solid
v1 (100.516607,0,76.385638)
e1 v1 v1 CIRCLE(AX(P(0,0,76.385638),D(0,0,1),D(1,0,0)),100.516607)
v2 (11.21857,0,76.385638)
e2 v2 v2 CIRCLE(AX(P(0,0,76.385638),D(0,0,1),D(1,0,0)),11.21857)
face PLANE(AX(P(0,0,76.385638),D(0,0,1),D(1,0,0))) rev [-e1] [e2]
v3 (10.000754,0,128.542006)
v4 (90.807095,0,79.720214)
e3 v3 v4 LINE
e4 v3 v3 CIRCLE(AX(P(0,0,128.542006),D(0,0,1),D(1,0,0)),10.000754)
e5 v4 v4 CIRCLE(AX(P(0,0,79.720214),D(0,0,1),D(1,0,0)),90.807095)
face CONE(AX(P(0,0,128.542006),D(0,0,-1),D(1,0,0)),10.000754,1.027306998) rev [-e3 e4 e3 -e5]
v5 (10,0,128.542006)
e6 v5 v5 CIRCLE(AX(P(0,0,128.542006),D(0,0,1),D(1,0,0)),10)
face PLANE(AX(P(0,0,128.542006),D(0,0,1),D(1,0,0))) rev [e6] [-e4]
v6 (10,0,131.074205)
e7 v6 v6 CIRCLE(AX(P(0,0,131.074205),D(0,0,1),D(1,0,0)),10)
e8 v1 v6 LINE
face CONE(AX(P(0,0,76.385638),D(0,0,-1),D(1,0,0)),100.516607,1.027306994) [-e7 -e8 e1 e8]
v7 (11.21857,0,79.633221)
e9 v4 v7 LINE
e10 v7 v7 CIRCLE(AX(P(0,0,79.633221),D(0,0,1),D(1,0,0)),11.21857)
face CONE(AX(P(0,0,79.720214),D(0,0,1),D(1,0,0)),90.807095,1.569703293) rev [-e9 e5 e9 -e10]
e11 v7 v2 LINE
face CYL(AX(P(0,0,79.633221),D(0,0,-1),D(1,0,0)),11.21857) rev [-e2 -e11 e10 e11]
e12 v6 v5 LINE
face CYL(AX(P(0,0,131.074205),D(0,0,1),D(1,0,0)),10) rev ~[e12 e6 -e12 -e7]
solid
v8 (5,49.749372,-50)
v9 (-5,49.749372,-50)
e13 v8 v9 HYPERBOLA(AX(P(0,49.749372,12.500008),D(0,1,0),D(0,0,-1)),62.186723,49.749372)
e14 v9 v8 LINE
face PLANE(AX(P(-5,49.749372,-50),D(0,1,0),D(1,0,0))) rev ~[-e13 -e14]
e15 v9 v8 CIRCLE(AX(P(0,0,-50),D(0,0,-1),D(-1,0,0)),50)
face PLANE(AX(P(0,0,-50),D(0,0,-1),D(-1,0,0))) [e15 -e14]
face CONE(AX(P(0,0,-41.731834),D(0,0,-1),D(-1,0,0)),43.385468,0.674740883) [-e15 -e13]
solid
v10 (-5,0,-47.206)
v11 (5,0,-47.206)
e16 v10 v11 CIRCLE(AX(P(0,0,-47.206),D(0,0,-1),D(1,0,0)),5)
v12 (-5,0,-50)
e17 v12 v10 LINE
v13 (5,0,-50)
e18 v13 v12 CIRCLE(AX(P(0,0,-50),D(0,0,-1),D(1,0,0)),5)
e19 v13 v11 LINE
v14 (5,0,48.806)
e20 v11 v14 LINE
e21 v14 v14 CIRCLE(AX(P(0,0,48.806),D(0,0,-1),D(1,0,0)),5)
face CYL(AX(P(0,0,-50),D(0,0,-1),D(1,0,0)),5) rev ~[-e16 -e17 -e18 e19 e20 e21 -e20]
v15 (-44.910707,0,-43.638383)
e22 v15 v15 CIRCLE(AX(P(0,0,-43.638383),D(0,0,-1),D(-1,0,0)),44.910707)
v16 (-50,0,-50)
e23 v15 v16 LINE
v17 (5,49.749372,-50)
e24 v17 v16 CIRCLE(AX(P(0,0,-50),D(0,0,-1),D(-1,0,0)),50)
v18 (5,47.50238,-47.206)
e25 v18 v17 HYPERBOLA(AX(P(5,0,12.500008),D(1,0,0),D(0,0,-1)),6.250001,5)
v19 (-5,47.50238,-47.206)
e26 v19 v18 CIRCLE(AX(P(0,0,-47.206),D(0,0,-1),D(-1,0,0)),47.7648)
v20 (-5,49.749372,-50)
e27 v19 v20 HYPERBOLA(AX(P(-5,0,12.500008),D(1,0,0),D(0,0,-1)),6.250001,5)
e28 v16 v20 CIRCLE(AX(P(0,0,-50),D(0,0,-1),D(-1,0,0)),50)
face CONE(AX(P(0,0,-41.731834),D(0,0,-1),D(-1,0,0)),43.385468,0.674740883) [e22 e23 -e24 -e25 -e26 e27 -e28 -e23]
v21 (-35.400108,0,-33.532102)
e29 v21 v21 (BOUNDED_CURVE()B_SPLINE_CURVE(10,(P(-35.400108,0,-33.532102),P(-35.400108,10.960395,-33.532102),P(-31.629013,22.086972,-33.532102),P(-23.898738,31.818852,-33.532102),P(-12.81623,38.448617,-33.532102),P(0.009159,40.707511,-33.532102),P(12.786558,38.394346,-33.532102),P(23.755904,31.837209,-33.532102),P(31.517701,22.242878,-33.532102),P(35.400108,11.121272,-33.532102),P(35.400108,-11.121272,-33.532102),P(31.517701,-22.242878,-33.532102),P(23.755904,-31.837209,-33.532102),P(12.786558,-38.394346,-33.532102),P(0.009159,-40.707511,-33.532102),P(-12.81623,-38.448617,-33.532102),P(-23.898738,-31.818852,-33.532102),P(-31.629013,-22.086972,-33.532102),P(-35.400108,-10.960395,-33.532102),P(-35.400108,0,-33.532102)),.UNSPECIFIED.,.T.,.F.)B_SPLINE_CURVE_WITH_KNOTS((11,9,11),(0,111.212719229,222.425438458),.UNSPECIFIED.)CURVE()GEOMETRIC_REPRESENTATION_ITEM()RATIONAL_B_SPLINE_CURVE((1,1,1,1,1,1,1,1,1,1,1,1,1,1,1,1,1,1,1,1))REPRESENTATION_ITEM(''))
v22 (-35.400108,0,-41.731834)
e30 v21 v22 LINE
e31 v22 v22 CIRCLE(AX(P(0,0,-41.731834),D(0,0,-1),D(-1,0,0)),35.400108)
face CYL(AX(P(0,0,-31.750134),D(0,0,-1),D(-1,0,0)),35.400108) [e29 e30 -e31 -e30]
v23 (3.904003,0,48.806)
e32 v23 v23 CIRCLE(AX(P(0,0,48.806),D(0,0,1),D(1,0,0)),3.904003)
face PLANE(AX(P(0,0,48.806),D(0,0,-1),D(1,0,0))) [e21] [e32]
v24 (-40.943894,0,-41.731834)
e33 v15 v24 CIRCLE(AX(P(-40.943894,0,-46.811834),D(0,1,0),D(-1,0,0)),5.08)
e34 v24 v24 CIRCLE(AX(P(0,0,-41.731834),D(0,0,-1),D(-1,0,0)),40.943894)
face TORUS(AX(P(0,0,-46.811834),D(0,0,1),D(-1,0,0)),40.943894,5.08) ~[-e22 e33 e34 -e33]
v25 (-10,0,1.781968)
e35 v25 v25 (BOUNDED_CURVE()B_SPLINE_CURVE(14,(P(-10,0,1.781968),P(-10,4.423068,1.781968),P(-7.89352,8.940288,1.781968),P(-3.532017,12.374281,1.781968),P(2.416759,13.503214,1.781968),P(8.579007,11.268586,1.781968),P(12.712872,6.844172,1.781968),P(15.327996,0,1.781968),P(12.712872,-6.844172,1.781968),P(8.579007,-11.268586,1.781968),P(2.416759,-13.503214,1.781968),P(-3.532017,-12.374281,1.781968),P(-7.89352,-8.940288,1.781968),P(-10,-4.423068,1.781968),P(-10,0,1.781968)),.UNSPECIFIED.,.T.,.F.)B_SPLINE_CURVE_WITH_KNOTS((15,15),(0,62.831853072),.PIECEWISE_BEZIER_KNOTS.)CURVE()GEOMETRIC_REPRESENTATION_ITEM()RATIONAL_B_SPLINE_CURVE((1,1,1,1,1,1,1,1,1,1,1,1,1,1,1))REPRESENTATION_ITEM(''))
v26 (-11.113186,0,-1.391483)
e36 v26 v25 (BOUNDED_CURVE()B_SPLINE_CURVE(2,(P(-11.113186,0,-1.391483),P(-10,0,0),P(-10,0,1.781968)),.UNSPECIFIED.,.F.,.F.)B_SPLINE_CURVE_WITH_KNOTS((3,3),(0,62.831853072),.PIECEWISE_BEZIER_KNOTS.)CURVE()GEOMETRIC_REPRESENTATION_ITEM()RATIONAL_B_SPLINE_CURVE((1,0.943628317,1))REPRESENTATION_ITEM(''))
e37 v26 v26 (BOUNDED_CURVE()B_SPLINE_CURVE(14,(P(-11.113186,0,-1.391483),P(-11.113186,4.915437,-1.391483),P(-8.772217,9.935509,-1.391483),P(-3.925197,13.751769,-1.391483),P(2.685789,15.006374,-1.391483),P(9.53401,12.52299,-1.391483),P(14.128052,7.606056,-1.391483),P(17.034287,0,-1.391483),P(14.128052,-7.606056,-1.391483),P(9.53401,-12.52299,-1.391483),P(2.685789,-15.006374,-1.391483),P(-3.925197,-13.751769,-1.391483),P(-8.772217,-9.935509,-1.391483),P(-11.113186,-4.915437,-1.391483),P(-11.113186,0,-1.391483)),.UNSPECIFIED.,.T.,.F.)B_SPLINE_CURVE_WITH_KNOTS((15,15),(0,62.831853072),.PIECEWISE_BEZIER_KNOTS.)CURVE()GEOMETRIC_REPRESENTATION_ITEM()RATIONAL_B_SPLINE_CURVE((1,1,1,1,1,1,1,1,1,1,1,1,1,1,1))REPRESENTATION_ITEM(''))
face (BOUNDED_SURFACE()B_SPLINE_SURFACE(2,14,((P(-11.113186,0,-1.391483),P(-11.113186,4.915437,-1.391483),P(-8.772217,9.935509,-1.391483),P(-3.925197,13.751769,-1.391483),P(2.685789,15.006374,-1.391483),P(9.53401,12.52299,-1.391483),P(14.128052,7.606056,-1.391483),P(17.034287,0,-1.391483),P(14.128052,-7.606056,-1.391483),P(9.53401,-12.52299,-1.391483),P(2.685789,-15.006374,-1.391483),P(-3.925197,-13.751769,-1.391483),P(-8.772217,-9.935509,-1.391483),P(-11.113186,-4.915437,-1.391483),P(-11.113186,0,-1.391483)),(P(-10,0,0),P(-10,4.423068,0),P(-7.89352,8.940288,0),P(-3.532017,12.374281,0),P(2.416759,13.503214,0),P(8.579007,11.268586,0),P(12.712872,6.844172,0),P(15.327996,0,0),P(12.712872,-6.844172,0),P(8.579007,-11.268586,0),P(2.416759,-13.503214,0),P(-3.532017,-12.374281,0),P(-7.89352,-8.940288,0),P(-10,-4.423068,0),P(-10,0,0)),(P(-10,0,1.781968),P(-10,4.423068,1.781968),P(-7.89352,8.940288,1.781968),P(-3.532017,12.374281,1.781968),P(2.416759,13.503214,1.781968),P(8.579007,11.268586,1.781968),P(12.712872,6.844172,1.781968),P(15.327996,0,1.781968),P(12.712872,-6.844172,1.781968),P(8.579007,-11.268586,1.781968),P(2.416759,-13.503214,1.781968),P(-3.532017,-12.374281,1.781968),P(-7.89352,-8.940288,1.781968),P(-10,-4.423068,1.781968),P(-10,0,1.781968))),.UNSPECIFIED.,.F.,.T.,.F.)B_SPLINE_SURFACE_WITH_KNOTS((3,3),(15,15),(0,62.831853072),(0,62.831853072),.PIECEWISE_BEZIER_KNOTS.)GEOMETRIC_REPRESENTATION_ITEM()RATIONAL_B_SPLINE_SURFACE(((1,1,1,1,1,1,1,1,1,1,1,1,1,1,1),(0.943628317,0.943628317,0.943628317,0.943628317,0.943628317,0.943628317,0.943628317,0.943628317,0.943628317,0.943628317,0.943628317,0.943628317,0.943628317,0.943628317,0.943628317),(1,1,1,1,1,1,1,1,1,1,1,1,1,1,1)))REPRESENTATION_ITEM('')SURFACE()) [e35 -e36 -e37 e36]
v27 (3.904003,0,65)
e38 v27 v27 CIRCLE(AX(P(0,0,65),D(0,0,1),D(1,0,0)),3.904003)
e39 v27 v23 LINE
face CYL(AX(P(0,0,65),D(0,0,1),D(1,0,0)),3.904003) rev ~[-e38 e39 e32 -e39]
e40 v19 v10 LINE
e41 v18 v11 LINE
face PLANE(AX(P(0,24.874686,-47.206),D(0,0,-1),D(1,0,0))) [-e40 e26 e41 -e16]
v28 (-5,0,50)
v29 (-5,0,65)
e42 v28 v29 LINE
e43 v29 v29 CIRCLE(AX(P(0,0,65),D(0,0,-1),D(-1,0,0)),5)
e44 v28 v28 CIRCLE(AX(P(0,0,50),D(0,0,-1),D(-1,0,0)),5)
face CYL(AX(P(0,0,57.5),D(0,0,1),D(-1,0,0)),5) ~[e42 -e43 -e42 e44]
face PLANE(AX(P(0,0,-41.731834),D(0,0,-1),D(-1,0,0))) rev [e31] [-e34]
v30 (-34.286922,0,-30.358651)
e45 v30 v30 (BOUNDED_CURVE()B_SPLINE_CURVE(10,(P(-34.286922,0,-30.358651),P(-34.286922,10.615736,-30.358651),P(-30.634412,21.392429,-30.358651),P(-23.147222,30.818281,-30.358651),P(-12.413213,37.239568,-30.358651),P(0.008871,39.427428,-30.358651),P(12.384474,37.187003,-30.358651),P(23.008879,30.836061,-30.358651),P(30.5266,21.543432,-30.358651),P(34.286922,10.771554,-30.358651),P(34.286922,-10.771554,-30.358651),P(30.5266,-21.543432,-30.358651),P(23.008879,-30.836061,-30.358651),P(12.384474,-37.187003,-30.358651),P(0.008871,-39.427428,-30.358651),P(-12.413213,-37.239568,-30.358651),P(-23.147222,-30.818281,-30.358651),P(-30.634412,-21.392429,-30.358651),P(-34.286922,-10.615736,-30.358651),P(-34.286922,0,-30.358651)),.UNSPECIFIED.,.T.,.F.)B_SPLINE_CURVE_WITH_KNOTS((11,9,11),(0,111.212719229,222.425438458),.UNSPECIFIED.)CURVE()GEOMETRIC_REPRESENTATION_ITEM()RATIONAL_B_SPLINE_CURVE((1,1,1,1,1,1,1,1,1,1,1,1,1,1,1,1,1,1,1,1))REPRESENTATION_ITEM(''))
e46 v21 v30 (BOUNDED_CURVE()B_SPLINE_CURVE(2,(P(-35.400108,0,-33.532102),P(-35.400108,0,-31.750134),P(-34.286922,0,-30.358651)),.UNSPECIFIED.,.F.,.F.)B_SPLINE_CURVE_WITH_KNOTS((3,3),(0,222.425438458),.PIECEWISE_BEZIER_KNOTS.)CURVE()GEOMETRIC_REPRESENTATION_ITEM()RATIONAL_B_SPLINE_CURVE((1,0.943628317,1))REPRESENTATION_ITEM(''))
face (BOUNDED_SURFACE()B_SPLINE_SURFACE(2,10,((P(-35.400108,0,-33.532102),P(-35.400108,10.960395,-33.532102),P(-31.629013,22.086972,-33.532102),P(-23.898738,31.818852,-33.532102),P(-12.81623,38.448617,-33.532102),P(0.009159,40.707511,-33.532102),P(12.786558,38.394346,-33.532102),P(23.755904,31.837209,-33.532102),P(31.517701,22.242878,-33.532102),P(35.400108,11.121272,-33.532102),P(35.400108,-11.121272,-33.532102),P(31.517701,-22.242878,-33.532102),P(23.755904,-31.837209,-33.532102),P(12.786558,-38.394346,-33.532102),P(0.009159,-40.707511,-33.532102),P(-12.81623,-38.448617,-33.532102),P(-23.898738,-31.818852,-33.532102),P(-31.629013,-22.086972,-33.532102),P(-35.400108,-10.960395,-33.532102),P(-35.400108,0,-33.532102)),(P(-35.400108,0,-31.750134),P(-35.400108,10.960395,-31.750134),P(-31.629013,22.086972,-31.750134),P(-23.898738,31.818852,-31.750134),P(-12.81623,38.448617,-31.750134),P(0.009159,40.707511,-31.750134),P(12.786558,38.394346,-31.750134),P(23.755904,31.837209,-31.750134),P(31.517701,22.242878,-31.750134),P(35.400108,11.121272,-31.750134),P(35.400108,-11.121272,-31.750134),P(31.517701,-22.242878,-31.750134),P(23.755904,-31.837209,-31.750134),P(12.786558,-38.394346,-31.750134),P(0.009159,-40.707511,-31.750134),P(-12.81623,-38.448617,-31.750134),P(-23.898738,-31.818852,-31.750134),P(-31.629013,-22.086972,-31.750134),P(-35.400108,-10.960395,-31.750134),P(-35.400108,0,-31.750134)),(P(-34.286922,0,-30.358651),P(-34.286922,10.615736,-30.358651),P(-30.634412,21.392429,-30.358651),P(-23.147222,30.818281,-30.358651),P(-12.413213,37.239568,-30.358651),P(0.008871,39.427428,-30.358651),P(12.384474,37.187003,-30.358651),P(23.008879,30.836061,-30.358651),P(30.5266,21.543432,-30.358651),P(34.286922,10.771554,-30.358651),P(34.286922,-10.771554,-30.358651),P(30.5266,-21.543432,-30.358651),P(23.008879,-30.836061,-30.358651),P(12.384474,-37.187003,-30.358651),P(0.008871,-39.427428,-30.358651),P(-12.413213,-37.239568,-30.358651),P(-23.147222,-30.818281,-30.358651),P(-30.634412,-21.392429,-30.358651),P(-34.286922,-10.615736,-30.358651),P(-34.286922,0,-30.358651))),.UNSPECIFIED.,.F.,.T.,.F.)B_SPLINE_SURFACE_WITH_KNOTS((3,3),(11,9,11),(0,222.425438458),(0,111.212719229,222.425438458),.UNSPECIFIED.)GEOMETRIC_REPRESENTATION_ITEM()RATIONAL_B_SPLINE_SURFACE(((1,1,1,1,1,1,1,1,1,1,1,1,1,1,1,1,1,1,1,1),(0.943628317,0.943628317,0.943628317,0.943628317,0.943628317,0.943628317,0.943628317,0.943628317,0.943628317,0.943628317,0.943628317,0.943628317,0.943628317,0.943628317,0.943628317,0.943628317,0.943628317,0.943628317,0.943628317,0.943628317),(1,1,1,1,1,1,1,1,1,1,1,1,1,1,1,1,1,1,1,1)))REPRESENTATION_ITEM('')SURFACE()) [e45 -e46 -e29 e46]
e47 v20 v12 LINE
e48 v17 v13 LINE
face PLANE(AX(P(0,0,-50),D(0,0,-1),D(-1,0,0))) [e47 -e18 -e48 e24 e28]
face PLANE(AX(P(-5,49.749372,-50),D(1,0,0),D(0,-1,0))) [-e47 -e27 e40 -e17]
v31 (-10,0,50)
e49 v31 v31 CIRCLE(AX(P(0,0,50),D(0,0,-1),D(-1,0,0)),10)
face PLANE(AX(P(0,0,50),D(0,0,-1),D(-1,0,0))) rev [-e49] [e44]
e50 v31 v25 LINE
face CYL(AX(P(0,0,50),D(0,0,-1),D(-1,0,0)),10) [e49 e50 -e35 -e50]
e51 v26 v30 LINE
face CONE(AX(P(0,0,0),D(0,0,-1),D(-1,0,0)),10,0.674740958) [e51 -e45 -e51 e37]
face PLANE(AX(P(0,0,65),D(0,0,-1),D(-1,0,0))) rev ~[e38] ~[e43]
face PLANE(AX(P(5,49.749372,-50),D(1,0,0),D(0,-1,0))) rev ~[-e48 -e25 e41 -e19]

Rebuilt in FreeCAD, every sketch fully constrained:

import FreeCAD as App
import Part
import Sketcher

V = App.Vector
Q = App.Units.Quantity


def edges_at(feature, points):
    """Names of the edges that pass closest to the given points."""
    edges = feature.Shape.Edges
    near = lambda p: min(range(len(edges)), key=lambda i: edges[i].distToShape(Part.Vertex(*p))[0])
    return sorted({f"Edge{near(p) + 1}" for p in points})


def add_polygon(sketch, points):
    """Adds a closed chain of lines whose ends are joined by coincident constraints."""
    first, n = sketch.GeometryCount, len(points)
    for a, b in zip(points, points[1:] + points[:1]):
        sketch.addGeometry(Part.LineSegment(App.Vector(*a, 0), App.Vector(*b, 0)), False)
    for i in range(n):
        sketch.addConstraint(Sketcher.Constraint("Coincident", first + i, 2, first + (i + 1) % n, 1))

doc = App.newDocument("Part")
body = doc.addObject("PartDesign::Body", "Body")
body.AllowCompound = True

sketch1 = doc.addObject("Sketcher::SketchObject", "Sketch")
body.addObject(sketch1)
sketch1.AttachmentSupport = (doc.XZ_Plane, [""])
sketch1.MapMode = "FlatFace"
add_polygon(sketch1, [(-50, -50), (0, -50), (0, 65), (-5, 65), (-5, 50), (-10, 50), (-10, 0), (-35.400108, -31.750134), (-35.400108, -41.731834), (-43.385468, -41.731834)])
sketch1.addConstraint([
    Sketcher.Constraint("Horizontal", 0),
    Sketcher.Constraint("Vertical", 1),
    Sketcher.Constraint("Horizontal", 2),
    Sketcher.Constraint("Vertical", 3),
    Sketcher.Constraint("Horizontal", 4),
    Sketcher.Constraint("Vertical", 5),
    Sketcher.Constraint("Vertical", 7),
    Sketcher.Constraint("Horizontal", 8),
    Sketcher.Constraint("PointOnObject", 0, 2, -2),
    Sketcher.Constraint("PointOnObject", 5, 2, -1),
    Sketcher.Constraint("Parallel", 6, 9),
    Sketcher.Constraint("Equal", 2, 4),
    Sketcher.Constraint("Equal", 0, 5),
    Sketcher.Constraint("DistanceX", 0, 1, 0, 2, Q("50 mm")),
    Sketcher.Constraint("DistanceX", 2, 2, 2, 1, Q("5 mm")),
    Sketcher.Constraint("DistanceY", 1, 1, 1, 2, Q("115 mm")),
    Sketcher.Constraint("DistanceY", 3, 2, 3, 1, Q("15 mm")),
    Sketcher.Constraint("DistanceY", 7, 2, 7, 1, Q("9.9817 mm")),
    Sketcher.Constraint("DistanceX", 8, 2, 8, 1, Q("7.98536 mm")),
    Sketcher.Constraint("Distance", 6, Q("40.660011 mm")),
])
revolution = doc.addObject("PartDesign::Revolution", "Revolution")
body.addObject(revolution)
revolution.Profile = sketch1
revolution.ReferenceAxis = (sketch1, ["V_Axis"])
revolution.Angle = 360

sketch2 = doc.addObject("Sketcher::SketchObject", "Sketch001")
body.addObject(sketch2)
sketch2.AttachmentSupport = (doc.XY_Plane, [""])
sketch2.MapMode = "FlatFace"
sketch2.AttachmentOffset = App.Placement(V(0, 0, -50), App.Rotation())
sketch2.addGeometry(Part.Circle(V(0, 0, 0), V(0, 0, 1), 5), False)
sketch2.addConstraint([
    Sketcher.Constraint("Coincident", 0, 3, -1, 1),
    Sketcher.Constraint("Diameter", 0, Q("10 mm")),
])
pocket1 = doc.addObject("PartDesign::Pocket", "Pocket")
body.addObject(pocket1)
pocket1.Profile = sketch2
pocket1.Length = 98.806
pocket1.Reversed = True

sketch3 = doc.addObject("Sketcher::SketchObject", "Sketch002")
body.addObject(sketch3)
sketch3.AttachmentSupport = (doc.XY_Plane, [""])
sketch3.MapMode = "FlatFace"
sketch3.AttachmentOffset = App.Placement(V(0, 0, 65), App.Rotation())
sketch3.addGeometry(Part.Circle(V(0, 0, 0), V(0, 0, 1), 3.904003), False)
sketch3.addConstraint([
    Sketcher.Constraint("Coincident", 0, 3, -1, 1),
    Sketcher.Constraint("Diameter", 0, Q("7.808006 mm")),
])
pocket2 = doc.addObject("PartDesign::Pocket", "Pocket001")
body.addObject(pocket2)
pocket2.Profile = sketch3
pocket2.Length = 18.034
doc.recompute()

fillet = doc.addObject("PartDesign::Fillet", "Fillet")
body.addObject(fillet)
fillet.Base = (pocket2, edges_at(pocket2, [
    (35.4, 0, -31.75),
    (43.385, 0, -41.732),
    (10, 0, 0),
    (-22.7, 0, -15.875),
]))
fillet.Radius = 5.08

sketch4 = doc.addObject("Sketcher::SketchObject", "Sketch003")
body.addObject(sketch4)
sketch4.AttachmentSupport = (doc.XY_Plane, [""])
sketch4.MapMode = "FlatFace"
sketch4.AttachmentOffset = App.Placement(V(0, 0, -50), App.Rotation())
add_polygon(sketch4, [(-5, 0), (-5, 49.749372), (5, 49.749372), (5, 0)])
sketch4.addConstraint([
    Sketcher.Constraint("Vertical", 0),
    Sketcher.Constraint("Horizontal", 1),
    Sketcher.Constraint("Vertical", 2),
    Sketcher.Constraint("Horizontal", 3),
    Sketcher.Constraint("Symmetric", 2, 2, 3, 2, -1, 1),
    Sketcher.Constraint("DistanceX", 1, 1, 1, 2, Q("10 mm")),
    Sketcher.Constraint("DistanceY", 0, 1, 0, 2, Q("49.749372 mm")),
])
pocket3 = doc.addObject("PartDesign::Pocket", "Pocket002")
body.addObject(pocket3)
pocket3.Profile = sketch4
pocket3.Length = 2.794
pocket3.Reversed = True
body2 = doc.addObject("PartDesign::Body", "Body001")

sketch5 = doc.addObject("Sketcher::SketchObject", "Sketch004")
body2.addObject(sketch5)
sketch5.AttachmentSupport = (doc.getObject("XZ_Plane001"), [""])
sketch5.MapMode = "FlatFace"
add_polygon(sketch5, [(11.21857, 76.385638), (100.516607, 76.385638), (10, 131.074205), (0, 131.074205), (0, 128.542006), (10.000754, 128.542006), (90.807095, 79.720214), (11.21857, 79.633221)])
sketch5.addConstraint([
    Sketcher.Constraint("Horizontal", 0),
    Sketcher.Constraint("Horizontal", 2),
    Sketcher.Constraint("Vertical", 3),
    Sketcher.Constraint("Horizontal", 4),
    Sketcher.Constraint("Vertical", 7),
    Sketcher.Constraint("PointOnObject", 2, 2, -2),
    Sketcher.Constraint("Parallel", 1, 5),
    Sketcher.Constraint("DistanceX", 2, 2, 2, 1, Q("10 mm")),
    Sketcher.Constraint("DistanceY", 3, 2, 3, 1, Q("2.532199 mm")),
    Sketcher.Constraint("DistanceX", 0, 1, 0, 2, Q("89.298037 mm")),
    Sketcher.Constraint("DistanceX", 4, 1, 4, 2, Q("10.000754 mm")),
    Sketcher.Constraint("DistanceY", 7, 2, 7, 1, Q("3.247583 mm")),
    Sketcher.Constraint("DistanceY", -1, 1, 0, 2, Q("76.385638 mm")),
    Sketcher.Constraint("DistanceX", -1, 1, 6, 2, Q("11.21857 mm")),
    Sketcher.Constraint("DistanceX", 5, 2, 0, 2, Q("9.709512 mm")),
    Sketcher.Constraint("DistanceY", 5, 2, 4, 2, Q("48.821792 mm")),
])
revolution2 = doc.addObject("PartDesign::Revolution", "Revolution001")
body2.addObject(revolution2)
revolution2.Profile = sketch5
revolution2.ReferenceAxis = (sketch5, ["V_Axis"])
revolution2.Angle = 360

sketch6 = doc.addObject("Sketcher::SketchObject", "Sketch005")
body2.addObject(sketch6)
sketch6.AttachmentSupport = (doc.getObject("XY_Plane001"), [""])
sketch6.MapMode = "FlatFace"
sketch6.AttachmentOffset = App.Placement(V(0, 0, 131.074205), App.Rotation())
sketch6.addGeometry(Part.Circle(V(0, 0, 0), V(0, 0, 1), 10), False)
sketch6.addConstraint([
    Sketcher.Constraint("Coincident", 0, 3, -1, 1),
    Sketcher.Constraint("Diameter", 0, Q("20 mm")),
])
pocket4 = doc.addObject("PartDesign::Pocket", "Pocket003")
body2.addObject(pocket4)
pocket4.Profile = sketch6
pocket4.Length = 55.372

doc.recompute()
